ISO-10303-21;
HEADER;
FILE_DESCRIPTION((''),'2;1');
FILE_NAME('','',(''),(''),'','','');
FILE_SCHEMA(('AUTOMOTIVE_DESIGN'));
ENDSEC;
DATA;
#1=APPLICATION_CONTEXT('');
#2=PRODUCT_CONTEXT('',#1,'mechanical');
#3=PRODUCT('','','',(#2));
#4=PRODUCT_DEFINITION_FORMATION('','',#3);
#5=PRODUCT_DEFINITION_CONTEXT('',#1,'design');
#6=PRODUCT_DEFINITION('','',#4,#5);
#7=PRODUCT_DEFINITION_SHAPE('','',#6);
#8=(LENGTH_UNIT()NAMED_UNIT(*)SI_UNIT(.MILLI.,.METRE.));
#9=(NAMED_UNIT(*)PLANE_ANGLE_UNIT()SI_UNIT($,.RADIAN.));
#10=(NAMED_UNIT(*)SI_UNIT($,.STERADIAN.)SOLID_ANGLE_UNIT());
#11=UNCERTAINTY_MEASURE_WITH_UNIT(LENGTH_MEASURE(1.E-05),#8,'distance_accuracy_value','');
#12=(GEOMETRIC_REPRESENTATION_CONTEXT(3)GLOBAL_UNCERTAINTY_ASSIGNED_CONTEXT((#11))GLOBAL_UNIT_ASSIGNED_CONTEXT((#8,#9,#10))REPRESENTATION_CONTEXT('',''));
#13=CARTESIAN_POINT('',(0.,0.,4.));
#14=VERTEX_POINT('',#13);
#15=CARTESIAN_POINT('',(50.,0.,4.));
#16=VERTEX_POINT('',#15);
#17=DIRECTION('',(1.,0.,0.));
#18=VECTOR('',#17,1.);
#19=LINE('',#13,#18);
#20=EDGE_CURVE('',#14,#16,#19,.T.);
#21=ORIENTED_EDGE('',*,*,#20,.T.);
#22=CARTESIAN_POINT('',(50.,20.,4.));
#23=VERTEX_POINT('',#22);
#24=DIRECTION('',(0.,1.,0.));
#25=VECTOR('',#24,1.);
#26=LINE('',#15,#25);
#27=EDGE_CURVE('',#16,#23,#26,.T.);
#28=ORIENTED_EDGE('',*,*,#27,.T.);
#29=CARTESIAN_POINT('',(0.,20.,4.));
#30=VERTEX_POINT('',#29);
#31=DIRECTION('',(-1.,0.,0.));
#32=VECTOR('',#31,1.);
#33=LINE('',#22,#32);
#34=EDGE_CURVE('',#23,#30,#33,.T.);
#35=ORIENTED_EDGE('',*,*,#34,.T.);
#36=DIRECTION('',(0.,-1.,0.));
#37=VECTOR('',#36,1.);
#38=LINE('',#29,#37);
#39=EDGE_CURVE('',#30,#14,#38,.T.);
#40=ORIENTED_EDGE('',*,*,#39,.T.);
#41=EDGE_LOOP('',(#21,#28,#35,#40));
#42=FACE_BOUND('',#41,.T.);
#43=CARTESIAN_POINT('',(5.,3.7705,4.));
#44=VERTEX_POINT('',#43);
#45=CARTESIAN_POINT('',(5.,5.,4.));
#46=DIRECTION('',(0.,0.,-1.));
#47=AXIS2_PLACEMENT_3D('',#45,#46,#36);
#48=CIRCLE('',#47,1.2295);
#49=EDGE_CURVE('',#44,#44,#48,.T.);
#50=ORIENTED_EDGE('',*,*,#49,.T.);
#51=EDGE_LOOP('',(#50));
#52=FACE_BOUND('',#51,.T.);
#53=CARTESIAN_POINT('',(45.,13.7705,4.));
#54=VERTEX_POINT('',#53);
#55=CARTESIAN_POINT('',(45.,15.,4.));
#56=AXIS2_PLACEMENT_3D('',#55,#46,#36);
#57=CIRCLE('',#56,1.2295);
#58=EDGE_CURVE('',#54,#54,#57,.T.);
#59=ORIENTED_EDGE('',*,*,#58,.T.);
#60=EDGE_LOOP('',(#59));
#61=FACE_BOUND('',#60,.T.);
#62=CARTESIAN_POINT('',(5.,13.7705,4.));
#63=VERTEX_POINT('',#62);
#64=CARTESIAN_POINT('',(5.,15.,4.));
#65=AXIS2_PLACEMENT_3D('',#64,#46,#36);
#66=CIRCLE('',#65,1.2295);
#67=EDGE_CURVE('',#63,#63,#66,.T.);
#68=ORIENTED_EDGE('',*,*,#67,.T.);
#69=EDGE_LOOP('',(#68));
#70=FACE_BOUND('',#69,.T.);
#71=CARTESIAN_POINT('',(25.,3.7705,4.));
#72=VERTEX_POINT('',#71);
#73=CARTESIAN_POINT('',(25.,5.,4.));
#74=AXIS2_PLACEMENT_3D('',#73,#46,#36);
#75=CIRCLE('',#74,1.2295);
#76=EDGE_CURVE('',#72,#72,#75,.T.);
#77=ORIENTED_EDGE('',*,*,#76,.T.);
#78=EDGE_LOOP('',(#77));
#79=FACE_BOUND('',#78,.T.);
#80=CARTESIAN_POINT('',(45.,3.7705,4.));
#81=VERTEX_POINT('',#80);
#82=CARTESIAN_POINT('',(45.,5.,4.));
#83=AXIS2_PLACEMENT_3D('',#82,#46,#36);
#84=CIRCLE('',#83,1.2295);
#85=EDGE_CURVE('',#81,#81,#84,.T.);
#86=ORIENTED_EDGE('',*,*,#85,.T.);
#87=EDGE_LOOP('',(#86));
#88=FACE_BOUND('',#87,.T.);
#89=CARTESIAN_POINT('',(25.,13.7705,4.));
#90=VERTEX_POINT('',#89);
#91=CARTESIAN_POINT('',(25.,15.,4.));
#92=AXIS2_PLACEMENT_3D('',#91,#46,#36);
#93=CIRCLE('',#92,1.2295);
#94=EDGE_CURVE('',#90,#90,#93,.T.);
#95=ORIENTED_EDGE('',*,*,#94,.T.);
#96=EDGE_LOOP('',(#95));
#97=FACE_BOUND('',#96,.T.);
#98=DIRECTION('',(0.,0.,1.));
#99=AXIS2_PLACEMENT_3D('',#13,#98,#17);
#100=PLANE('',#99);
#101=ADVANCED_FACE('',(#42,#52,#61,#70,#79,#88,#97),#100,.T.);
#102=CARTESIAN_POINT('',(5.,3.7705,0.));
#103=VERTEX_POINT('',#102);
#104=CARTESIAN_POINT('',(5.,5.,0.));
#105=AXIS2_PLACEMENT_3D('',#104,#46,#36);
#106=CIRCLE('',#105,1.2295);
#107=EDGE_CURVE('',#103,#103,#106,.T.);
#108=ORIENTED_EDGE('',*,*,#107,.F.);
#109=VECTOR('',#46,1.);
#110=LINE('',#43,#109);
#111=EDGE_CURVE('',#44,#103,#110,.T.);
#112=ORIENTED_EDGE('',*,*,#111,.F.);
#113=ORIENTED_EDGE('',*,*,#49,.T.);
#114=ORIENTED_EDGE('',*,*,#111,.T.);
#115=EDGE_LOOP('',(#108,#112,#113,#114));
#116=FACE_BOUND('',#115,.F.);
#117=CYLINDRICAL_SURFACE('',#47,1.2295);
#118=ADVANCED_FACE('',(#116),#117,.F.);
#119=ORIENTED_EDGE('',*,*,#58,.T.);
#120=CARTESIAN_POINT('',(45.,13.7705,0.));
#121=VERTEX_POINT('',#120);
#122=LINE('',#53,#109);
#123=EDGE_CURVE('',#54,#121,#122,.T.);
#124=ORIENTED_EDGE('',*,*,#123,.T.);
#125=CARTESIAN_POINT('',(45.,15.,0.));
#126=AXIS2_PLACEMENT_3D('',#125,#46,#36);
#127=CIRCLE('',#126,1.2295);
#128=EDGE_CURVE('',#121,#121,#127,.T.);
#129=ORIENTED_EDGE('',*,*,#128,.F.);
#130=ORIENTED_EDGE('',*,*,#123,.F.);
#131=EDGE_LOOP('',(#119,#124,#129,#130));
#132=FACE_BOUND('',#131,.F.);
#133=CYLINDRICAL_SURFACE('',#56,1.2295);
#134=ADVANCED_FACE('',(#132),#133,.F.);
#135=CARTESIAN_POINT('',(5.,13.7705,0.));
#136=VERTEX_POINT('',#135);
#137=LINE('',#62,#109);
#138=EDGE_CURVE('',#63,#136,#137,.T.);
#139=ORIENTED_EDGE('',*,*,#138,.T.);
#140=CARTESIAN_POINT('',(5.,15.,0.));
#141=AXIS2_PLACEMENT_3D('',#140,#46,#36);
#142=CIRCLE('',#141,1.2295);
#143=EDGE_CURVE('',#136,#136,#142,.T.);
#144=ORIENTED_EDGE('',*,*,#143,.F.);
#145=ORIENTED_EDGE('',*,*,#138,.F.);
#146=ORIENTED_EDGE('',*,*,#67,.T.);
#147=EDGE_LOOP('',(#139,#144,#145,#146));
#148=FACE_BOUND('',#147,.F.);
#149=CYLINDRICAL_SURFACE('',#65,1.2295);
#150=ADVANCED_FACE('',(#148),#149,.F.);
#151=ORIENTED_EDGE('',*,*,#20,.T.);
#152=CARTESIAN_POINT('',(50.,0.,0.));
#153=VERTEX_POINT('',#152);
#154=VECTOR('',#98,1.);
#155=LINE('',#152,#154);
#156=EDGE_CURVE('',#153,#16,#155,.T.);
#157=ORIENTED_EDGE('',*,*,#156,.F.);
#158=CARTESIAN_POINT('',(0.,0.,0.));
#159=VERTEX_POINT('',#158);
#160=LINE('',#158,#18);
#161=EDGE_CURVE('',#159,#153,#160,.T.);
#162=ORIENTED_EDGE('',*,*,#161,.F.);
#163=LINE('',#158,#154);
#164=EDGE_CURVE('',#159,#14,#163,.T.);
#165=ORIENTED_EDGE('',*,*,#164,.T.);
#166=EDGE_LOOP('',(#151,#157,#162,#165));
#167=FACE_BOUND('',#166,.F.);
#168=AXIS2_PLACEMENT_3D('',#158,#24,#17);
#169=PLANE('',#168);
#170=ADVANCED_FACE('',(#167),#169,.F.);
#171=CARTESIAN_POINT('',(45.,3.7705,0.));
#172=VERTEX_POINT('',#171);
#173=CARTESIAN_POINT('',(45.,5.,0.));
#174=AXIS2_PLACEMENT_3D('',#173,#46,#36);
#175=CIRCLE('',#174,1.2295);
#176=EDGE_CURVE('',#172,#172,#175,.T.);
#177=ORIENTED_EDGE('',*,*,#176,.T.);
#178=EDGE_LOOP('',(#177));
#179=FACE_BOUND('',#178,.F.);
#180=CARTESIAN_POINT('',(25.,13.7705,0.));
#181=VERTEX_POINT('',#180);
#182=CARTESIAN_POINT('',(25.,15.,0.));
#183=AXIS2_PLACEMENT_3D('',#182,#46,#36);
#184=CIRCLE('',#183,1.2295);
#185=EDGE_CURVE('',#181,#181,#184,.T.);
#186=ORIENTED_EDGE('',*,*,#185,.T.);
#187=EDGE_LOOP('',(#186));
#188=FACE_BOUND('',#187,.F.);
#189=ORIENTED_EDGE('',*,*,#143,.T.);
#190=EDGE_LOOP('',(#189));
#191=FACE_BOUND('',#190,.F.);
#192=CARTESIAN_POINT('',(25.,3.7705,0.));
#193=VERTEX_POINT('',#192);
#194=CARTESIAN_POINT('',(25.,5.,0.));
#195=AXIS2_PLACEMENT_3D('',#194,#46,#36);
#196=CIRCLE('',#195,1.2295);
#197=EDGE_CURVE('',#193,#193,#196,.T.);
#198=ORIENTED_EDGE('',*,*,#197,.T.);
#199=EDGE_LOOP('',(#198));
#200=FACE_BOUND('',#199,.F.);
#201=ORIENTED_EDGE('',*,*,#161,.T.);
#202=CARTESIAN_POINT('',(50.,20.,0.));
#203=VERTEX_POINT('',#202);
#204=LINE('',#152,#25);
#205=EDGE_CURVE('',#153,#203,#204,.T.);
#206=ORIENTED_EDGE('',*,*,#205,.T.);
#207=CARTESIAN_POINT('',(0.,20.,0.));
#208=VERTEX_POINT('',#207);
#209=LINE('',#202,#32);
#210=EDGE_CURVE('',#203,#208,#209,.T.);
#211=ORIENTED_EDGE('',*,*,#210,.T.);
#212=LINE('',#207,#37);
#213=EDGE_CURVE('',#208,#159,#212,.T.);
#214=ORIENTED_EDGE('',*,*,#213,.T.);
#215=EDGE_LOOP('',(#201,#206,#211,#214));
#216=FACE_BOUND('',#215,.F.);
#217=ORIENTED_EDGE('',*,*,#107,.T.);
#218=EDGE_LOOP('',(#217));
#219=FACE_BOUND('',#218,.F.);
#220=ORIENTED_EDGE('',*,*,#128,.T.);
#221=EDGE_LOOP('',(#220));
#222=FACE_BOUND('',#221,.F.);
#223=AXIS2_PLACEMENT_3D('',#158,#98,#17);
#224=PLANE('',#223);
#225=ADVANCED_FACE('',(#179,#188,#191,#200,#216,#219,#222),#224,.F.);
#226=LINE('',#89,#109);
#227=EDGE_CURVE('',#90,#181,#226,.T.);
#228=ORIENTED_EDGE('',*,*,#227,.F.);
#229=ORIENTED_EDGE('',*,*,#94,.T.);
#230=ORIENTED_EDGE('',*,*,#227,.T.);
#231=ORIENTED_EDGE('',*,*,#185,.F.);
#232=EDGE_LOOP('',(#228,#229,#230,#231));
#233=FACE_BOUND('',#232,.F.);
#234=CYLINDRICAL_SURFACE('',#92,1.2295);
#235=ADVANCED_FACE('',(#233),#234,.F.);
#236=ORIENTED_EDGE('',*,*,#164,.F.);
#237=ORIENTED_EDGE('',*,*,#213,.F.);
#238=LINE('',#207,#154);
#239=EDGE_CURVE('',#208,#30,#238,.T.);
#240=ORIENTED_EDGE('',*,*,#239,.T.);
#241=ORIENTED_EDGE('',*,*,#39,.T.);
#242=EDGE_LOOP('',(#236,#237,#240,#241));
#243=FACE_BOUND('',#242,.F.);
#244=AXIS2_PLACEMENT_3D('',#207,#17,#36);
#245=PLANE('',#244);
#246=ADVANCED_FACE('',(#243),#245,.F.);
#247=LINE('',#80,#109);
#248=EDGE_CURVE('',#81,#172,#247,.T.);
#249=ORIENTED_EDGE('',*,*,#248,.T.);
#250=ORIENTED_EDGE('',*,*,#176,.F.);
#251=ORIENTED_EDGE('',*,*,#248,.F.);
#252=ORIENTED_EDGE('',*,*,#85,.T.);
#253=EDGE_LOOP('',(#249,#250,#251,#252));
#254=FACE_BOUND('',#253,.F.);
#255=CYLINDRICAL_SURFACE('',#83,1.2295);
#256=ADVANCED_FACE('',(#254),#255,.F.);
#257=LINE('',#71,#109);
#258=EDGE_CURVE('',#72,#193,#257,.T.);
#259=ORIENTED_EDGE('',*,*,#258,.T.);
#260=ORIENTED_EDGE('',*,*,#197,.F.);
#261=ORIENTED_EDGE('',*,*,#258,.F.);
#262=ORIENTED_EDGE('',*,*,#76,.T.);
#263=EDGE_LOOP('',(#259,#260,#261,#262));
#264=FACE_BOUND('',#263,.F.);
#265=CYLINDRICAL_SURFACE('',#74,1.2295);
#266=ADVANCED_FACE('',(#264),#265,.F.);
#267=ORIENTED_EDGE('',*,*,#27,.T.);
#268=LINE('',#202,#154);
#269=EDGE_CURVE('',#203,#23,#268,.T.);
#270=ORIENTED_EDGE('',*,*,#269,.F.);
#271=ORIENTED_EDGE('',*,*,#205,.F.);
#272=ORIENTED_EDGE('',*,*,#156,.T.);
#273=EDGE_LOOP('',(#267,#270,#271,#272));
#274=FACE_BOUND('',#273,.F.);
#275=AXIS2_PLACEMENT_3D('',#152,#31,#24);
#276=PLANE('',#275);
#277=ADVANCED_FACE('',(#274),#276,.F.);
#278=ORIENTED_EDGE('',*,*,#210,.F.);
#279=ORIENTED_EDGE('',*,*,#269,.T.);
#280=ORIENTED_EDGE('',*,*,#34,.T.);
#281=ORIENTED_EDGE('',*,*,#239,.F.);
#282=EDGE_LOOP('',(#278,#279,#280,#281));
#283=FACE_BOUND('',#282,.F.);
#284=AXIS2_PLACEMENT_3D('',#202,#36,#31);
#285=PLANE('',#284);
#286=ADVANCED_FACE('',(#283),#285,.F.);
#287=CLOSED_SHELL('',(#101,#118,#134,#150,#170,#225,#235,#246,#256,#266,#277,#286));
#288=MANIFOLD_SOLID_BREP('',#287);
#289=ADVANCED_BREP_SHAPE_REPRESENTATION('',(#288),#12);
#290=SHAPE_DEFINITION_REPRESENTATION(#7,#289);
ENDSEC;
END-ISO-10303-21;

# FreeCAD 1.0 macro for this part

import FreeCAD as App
import Part
import Sketcher
Q = App.Units.Quantity


def add_polygon(sketch, points):
    """Adds a closed chain of lines whose ends are joined by coincident constraints."""
    first, n = sketch.GeometryCount, len(points)
    for a, b in zip(points, points[1:] + points[:1]):
        sketch.addGeometry(Part.LineSegment(App.Vector(*a, 0), App.Vector(*b, 0)), False)
    for i in range(n):
        sketch.addConstraint(Sketcher.Constraint("Coincident", first + i, 2, first + (i + 1) % n, 1))

doc = App.newDocument("Part")
body = doc.addObject("PartDesign::Body", "Body")

# Sketch on XY plane
sketch1 = body.newObject("Sketcher::SketchObject", "Sketch")
sketch1.AttachmentSupport = (doc.getObject("XY_Plane"), [""])
sketch1.MapMode = "FlatFace"
add_polygon(sketch1, [(0, 20), (0, 0), (50, 0), (50, 20)])  # lines 0-3
sketch1.addConstraint([
    Sketcher.Constraint("Vertical", 0),
    Sketcher.Constraint("Horizontal", 1),
    Sketcher.Constraint("Vertical", 2),
    Sketcher.Constraint("Horizontal", 3),
    Sketcher.Constraint("Coincident", 0, 2, -1, 1),
    Sketcher.Constraint("DistanceX", 1, 1, 1, 2, Q("50 mm")),
    Sketcher.Constraint("DistanceY", 0, 2, 0, 1, Q("20 mm")),
])
pad1 = body.newObject("PartDesign::Pad", "Pad")
pad1.Profile = sketch1
pad1.Length = 4

# Sketch on XY plane
sketch2 = body.newObject("Sketcher::SketchObject", "Sketch001")
sketch2.AttachmentSupport = (doc.getObject("XY_Plane"), [""])
sketch2.MapMode = "FlatFace"
sketch2.AttachmentOffset = App.Placement(App.Vector(0, 0, 4), App.Rotation())
sketch2.addGeometry([
    Part.Circle(App.Vector(5, 15, 0), App.Vector(0, 0, 1), 1.2),  # 0
    Part.Circle(App.Vector(5, 5, 0), App.Vector(0, 0, 1), 1.2),  # 1
    Part.Circle(App.Vector(25, 5, 0), App.Vector(0, 0, 1), 1.2),  # 2
    Part.Circle(App.Vector(25, 15, 0), App.Vector(0, 0, 1), 1.2),  # 3
    Part.Circle(App.Vector(45, 15, 0), App.Vector(0, 0, 1), 1.2),  # 4
    Part.Circle(App.Vector(45, 5, 0), App.Vector(0, 0, 1), 1.2),  # 5
], False)
sketch2.addConstraint([
    Sketcher.Constraint("Equal", 0, 1),
    Sketcher.Constraint("Equal", 1, 2),
    Sketcher.Constraint("Equal", 2, 3),
    Sketcher.Constraint("Equal", 3, 4),
    Sketcher.Constraint("Equal", 4, 5),
    Sketcher.Constraint("Horizontal", 1, 3, 2, 3),
    Sketcher.Constraint("Horizontal", 0, 3, 3, 3),
    Sketcher.Constraint("Horizontal", 3, 3, 4, 3),
    Sketcher.Constraint("Horizontal", 2, 3, 5, 3),
    Sketcher.Constraint("Vertical", 0, 3, 1, 3),
    Sketcher.Constraint("Vertical", 2, 3, 3, 3),
    Sketcher.Constraint("Vertical", 4, 3, 5, 3),
    Sketcher.Constraint("Diameter", 0, Q("2.459 mm")),
    Sketcher.Constraint("DistanceX", -1, 1, 0, 3, Q("5 mm")),
    Sketcher.Constraint("DistanceY", -1, 1, 0, 3, Q("15 mm")),
    Sketcher.Constraint("DistanceY", -1, 1, 1, 3, Q("5 mm")),
    Sketcher.Constraint("DistanceX", -1, 1, 2, 3, Q("25 mm")),
    Sketcher.Constraint("DistanceX", -1, 1, 4, 3, Q("45 mm")),
])
doc.recompute()
hole = body.newObject("PartDesign::Hole", "Hole")
hole.Profile = sketch2
hole.ThreadType = "None"
hole.Diameter = 2.459
hole.DepthType = "ThroughAll"

doc.recompute()
